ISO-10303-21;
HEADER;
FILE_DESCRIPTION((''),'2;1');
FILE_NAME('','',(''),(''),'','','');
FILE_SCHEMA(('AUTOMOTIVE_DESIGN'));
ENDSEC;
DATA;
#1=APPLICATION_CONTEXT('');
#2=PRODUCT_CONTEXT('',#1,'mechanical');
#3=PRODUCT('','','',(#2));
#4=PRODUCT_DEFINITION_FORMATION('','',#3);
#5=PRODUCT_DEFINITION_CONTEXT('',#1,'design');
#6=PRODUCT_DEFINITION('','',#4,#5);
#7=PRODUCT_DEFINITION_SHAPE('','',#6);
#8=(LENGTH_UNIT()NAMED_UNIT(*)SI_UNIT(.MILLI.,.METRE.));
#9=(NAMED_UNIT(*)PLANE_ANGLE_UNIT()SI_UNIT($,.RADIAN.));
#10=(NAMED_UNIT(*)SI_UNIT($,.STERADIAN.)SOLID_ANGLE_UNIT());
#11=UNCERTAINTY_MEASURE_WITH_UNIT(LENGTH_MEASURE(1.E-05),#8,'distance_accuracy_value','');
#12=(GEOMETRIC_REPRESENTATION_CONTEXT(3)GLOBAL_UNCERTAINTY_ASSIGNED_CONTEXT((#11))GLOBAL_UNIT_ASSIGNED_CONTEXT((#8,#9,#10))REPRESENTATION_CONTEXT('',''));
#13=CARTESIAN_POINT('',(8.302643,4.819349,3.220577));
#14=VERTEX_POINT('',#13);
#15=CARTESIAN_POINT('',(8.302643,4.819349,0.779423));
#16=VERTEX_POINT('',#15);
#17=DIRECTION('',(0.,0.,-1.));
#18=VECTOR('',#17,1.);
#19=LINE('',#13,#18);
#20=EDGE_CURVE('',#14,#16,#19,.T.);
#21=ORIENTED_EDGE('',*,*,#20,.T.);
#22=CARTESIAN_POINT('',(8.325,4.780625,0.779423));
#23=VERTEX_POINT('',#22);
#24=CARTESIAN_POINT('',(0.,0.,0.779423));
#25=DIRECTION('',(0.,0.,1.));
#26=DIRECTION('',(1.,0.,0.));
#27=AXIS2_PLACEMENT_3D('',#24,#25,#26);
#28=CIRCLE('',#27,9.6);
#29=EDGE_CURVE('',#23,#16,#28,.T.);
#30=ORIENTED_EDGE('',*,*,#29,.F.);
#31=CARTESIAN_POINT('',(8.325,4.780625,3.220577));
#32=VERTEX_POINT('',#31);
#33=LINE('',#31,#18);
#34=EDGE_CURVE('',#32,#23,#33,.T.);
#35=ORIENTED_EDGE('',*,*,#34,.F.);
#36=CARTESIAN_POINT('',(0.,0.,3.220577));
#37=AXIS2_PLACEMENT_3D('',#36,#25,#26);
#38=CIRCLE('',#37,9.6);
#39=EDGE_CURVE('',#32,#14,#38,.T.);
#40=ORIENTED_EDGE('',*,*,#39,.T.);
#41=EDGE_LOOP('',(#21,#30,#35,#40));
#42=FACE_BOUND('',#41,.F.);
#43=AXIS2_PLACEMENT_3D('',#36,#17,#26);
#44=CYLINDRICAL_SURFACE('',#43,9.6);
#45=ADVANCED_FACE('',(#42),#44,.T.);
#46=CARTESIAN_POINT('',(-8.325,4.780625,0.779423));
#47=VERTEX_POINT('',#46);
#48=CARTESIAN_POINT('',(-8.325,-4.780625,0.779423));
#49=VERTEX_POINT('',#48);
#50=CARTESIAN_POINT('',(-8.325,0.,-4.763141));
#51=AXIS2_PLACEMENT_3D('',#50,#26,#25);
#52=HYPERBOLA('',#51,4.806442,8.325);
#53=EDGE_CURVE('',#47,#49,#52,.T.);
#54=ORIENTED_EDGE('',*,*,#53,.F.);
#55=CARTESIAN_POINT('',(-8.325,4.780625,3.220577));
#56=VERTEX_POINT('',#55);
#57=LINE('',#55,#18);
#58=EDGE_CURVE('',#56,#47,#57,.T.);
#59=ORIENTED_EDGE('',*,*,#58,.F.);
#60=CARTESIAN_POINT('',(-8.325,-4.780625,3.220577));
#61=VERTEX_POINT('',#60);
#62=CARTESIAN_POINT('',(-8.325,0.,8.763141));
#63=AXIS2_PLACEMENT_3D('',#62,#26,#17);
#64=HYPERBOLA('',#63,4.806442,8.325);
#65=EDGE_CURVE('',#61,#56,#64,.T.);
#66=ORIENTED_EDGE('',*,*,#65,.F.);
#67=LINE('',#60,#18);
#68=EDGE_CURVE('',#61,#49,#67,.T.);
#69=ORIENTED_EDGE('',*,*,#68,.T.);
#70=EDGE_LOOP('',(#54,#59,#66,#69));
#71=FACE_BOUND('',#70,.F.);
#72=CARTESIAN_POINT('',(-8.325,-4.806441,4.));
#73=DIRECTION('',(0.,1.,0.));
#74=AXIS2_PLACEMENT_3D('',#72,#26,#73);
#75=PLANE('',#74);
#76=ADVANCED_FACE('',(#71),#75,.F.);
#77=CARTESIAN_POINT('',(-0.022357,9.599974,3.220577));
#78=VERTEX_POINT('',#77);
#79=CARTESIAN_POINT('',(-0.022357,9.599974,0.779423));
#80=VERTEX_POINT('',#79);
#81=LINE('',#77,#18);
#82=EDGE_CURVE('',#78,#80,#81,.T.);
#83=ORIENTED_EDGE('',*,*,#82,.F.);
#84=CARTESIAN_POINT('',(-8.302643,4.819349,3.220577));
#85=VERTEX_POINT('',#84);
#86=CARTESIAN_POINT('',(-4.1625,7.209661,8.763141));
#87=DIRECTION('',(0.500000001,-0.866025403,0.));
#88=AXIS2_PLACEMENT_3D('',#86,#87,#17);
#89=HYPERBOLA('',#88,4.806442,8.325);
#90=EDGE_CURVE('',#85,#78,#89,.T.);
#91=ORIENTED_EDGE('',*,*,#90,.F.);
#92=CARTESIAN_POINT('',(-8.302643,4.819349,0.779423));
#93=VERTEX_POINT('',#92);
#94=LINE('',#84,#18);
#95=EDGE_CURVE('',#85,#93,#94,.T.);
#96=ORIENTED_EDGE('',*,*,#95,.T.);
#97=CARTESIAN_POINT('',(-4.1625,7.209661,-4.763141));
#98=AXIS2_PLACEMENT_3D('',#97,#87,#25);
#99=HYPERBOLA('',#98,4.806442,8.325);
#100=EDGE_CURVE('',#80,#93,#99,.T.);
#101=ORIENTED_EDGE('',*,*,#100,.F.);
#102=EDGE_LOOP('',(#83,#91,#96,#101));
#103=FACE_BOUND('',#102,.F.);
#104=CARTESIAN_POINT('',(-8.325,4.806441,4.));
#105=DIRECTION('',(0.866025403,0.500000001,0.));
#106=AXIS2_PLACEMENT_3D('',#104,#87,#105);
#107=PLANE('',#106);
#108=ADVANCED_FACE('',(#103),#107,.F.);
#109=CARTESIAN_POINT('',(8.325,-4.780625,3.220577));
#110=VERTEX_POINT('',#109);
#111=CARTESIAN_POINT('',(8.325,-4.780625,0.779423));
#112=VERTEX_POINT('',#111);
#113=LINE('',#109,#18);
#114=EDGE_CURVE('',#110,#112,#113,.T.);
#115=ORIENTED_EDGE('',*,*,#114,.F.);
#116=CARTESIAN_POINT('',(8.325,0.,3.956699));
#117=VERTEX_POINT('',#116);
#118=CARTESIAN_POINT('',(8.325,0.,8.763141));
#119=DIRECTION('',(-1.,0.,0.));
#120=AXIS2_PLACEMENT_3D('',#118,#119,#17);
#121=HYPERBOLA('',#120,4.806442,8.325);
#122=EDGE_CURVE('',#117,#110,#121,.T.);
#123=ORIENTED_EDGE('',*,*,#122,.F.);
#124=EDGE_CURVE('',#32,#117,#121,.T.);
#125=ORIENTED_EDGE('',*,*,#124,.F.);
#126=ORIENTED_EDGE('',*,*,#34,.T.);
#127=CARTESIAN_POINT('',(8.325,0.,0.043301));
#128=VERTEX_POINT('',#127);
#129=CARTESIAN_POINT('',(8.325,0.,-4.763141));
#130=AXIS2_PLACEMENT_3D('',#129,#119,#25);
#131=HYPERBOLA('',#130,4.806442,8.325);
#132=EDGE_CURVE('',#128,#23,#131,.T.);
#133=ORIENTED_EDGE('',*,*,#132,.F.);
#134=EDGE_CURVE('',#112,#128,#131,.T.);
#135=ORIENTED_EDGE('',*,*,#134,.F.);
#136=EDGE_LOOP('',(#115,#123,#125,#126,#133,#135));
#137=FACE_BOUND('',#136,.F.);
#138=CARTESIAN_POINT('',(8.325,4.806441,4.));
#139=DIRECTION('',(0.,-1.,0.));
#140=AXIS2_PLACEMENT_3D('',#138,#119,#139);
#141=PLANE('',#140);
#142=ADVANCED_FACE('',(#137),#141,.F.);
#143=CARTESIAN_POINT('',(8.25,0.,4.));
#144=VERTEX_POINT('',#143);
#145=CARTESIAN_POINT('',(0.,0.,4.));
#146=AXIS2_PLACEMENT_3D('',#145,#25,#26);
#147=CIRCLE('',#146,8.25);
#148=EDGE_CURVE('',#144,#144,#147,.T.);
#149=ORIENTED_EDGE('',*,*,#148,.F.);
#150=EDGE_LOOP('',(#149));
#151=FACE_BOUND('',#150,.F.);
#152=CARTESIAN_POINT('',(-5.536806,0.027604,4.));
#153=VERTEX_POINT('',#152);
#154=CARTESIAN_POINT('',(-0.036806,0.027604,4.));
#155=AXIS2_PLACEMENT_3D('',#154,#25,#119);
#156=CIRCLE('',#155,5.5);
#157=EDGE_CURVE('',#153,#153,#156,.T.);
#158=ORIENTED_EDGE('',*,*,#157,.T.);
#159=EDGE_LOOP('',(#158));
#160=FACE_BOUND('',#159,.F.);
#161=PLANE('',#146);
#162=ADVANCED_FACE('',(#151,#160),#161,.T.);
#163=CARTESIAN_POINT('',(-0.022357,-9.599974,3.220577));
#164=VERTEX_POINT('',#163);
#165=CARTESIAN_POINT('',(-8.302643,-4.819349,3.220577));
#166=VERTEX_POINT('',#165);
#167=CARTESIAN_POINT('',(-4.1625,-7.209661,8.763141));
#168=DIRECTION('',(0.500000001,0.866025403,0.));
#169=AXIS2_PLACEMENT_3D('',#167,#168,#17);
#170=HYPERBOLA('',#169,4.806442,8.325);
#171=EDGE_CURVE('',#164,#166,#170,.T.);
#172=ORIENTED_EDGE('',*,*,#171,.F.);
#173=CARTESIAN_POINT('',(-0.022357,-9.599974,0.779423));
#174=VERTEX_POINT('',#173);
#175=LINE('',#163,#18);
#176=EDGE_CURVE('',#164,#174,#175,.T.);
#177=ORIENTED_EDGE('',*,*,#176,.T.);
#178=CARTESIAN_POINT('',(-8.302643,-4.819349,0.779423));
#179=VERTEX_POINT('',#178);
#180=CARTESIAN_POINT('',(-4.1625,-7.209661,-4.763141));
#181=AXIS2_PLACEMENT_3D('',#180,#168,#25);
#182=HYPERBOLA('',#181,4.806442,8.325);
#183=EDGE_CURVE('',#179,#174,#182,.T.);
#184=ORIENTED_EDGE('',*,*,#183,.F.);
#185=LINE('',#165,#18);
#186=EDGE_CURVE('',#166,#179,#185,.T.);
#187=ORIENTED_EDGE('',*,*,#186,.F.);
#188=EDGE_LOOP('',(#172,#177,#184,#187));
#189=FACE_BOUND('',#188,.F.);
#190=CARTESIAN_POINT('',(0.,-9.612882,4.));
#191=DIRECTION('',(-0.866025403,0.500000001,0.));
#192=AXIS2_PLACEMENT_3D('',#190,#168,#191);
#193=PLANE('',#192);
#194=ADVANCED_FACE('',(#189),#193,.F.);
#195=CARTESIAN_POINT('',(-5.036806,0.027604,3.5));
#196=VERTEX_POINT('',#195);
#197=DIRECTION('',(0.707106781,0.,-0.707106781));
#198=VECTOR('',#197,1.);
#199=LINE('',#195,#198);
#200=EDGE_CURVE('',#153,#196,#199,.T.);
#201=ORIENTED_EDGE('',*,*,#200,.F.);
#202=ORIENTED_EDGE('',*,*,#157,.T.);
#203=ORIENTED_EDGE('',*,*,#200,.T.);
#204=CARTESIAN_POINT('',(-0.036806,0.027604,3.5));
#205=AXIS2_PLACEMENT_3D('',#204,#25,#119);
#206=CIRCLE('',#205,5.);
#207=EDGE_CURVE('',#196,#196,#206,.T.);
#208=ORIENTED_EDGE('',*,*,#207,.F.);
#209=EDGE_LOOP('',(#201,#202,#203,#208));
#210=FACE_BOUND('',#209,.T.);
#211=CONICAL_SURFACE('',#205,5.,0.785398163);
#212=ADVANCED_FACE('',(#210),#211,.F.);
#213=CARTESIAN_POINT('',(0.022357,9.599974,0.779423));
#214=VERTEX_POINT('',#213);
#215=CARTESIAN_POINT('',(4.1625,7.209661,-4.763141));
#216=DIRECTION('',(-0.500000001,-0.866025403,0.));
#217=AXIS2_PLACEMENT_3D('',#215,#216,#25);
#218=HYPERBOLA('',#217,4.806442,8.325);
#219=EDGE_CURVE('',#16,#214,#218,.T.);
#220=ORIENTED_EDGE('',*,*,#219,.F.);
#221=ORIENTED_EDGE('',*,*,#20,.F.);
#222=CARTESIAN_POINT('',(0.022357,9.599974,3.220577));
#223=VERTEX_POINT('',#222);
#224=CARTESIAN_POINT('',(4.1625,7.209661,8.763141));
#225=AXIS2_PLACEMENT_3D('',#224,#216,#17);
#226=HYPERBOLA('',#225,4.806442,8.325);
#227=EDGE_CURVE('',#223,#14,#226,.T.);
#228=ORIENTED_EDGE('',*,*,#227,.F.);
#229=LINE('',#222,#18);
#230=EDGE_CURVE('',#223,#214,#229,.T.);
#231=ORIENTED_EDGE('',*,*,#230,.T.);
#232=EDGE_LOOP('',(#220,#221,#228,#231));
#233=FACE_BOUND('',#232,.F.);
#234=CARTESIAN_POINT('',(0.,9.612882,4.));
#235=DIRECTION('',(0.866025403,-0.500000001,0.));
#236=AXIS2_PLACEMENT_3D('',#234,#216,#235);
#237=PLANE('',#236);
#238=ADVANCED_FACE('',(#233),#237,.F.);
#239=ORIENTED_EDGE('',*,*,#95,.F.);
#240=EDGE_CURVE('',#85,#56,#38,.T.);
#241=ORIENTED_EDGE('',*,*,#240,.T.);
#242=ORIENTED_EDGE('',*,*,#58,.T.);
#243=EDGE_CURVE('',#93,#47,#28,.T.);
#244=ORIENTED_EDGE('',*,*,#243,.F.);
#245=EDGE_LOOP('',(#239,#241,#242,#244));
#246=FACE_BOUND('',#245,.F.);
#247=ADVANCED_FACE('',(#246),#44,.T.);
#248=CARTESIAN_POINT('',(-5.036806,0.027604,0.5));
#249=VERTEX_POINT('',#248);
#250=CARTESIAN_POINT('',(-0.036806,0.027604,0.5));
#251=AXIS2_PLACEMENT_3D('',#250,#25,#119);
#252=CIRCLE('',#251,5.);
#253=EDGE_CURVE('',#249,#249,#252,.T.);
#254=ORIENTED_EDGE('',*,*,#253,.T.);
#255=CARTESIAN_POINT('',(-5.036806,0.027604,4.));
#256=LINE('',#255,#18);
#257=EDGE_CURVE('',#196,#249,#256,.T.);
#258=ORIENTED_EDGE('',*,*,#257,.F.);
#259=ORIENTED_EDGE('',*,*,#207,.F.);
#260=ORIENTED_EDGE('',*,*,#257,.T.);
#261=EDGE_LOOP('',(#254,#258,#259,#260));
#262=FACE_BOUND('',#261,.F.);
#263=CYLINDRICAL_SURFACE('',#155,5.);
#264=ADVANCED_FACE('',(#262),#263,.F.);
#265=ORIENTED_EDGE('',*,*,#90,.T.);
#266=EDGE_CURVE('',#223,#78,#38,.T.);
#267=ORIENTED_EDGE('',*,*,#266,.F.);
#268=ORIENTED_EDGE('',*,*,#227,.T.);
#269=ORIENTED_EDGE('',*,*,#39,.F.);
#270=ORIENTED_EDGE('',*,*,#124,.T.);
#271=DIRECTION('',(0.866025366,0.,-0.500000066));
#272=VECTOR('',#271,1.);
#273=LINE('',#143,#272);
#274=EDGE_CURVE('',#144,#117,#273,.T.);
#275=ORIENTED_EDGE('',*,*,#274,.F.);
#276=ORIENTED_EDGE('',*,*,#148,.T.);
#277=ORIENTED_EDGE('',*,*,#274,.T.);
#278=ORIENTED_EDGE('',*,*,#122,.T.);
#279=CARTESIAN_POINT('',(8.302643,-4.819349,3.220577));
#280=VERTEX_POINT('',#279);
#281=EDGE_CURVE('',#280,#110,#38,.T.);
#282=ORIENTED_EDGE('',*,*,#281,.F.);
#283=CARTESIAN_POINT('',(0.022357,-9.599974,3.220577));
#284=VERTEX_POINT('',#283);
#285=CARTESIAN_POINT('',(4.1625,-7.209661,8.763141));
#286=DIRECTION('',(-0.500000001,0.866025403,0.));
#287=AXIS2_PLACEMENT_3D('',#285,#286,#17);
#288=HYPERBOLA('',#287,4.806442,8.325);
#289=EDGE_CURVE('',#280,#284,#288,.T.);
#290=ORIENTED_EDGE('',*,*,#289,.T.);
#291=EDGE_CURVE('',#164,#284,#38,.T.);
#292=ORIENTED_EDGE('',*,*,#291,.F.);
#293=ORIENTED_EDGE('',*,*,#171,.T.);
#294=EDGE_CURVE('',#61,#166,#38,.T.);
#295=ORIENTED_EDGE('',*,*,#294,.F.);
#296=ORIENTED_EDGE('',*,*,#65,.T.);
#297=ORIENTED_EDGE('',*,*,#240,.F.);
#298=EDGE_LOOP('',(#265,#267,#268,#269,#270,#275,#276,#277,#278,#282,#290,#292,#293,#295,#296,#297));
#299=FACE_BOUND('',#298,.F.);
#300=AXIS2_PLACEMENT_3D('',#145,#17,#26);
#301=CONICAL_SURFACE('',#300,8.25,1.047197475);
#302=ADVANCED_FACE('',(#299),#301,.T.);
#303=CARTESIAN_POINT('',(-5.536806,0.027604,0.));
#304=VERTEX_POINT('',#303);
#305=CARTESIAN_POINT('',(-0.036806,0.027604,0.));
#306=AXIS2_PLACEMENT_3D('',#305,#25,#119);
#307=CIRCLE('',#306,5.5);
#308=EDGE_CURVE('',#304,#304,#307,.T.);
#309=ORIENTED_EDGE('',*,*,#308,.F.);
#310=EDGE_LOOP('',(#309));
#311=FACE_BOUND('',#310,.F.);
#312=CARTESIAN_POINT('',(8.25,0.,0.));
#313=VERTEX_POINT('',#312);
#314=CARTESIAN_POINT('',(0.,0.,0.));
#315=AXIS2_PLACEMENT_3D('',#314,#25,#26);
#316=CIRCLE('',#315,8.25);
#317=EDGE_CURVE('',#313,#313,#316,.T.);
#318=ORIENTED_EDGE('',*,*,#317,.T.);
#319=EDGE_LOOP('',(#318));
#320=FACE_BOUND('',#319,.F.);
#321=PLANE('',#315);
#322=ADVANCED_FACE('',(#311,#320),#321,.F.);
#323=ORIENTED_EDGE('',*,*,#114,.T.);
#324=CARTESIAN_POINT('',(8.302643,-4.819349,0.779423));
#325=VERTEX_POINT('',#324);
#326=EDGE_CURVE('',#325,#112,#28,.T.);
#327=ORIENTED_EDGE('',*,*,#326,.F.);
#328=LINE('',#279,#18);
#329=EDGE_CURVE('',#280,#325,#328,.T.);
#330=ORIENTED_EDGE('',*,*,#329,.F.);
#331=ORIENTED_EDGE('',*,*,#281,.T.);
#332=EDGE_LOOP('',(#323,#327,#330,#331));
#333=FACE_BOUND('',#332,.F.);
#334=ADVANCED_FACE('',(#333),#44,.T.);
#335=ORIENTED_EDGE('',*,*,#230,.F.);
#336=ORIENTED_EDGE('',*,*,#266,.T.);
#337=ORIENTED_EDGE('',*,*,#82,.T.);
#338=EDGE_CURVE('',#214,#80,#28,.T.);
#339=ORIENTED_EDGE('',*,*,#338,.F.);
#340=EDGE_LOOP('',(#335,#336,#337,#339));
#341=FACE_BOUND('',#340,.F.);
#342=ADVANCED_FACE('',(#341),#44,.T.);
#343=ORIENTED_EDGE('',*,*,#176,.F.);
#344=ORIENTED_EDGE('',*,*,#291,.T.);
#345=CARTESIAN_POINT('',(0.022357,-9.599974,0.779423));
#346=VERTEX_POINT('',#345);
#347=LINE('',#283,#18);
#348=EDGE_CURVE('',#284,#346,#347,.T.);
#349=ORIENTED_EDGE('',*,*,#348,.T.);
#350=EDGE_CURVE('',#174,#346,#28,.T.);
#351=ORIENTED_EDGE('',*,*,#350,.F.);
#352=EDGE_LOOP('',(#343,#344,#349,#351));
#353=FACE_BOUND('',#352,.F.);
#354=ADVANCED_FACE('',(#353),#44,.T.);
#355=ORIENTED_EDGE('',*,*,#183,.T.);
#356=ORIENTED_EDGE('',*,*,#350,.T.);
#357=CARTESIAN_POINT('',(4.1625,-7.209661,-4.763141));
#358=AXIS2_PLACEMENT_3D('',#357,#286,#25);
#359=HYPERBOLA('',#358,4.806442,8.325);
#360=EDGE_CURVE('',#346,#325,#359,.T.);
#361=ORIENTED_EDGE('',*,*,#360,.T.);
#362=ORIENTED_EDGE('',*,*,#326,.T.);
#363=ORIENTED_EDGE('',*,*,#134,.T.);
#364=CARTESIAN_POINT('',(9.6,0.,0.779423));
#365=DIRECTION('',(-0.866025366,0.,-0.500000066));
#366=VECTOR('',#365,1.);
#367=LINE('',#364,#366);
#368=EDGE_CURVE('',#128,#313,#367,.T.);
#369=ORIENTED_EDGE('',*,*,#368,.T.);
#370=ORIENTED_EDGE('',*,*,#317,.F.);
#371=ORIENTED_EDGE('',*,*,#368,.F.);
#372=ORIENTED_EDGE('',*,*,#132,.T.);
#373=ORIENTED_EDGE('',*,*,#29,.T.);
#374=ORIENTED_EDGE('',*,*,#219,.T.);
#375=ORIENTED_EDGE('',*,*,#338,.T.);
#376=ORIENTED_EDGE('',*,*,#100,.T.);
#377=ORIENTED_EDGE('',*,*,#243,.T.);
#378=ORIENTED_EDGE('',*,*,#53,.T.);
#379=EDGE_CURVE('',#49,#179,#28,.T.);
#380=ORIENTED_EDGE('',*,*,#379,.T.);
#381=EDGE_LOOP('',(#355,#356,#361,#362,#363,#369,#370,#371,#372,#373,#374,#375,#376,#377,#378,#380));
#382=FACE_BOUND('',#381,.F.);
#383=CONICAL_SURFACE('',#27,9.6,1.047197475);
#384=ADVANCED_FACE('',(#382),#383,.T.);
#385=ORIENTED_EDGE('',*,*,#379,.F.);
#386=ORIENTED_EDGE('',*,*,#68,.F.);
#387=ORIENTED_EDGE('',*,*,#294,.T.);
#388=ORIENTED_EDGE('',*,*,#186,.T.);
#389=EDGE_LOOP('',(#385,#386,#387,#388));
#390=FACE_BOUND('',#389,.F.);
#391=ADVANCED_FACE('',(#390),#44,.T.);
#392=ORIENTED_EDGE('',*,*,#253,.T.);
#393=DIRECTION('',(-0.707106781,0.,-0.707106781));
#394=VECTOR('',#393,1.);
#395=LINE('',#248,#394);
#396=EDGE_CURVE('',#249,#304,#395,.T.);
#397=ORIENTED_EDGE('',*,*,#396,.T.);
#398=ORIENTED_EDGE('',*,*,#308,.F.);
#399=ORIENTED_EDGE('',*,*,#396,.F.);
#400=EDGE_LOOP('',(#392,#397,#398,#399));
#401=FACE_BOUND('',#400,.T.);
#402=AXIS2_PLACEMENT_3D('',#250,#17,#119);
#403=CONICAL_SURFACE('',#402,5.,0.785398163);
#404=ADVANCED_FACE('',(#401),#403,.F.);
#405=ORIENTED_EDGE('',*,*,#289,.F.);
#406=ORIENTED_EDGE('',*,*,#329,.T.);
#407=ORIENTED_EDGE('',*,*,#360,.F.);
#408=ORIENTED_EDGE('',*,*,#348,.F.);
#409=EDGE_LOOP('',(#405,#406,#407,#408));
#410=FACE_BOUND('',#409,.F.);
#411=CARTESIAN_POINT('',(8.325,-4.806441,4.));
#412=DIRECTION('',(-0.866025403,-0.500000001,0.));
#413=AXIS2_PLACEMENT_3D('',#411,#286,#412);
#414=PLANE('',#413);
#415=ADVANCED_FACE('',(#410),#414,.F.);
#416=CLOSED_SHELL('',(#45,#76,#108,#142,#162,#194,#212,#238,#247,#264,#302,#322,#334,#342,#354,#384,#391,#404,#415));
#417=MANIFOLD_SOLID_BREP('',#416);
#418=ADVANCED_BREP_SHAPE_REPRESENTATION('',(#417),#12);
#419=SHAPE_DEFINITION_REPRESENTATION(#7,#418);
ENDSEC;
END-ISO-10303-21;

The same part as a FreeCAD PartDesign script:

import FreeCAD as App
import Part
import Sketcher

V = App.Vector
Q = App.Units.Quantity


def edges_at(feature, points):
    """Names of the edges that pass closest to the given points."""
    edges = feature.Shape.Edges
    near = lambda p: min(range(len(edges)), key=lambda i: edges[i].distToShape(Part.Vertex(*p))[0])
    return sorted({f"Edge{near(p) + 1}" for p in points})


def add_polygon(sketch, points):
    """Adds a closed chain of lines whose ends are joined by coincident constraints."""
    first, n = sketch.GeometryCount, len(points)
    for a, b in zip(points, points[1:] + points[:1]):
        sketch.addGeometry(Part.LineSegment(App.Vector(*a, 0), App.Vector(*b, 0)), False)
    for i in range(n):
        sketch.addConstraint(Sketcher.Constraint("Coincident", first + i, 2, first + (i + 1) % n, 1))

doc = App.newDocument("Part")
params = doc.addObject("Spreadsheet::Sheet", "Params")
for row, (alias, value) in enumerate([
    ("sketch1_height", "4 mm"),
    ("sketch1_width", "8.25 mm"),
    ("revolution_angle", "360 deg"),
    ("sketch3_diameter", "10 mm"),
    ("chamfer_size", "0.5 mm"),
], start=1):
    params.set(f"A{row}", alias)
    params.set(f"B{row}", "=" + value)
    params.setAlias(f"B{row}", alias)

body = doc.addObject("PartDesign::Body", "Body")

# Sketch on XZ plane
sketch1 = doc.addObject("Sketcher::SketchObject", "Sketch")
body.addObject(sketch1)
sketch1.AttachmentSupport = (doc.XZ_Plane, [""])
sketch1.MapMode = "FlatFace"
add_polygon(sketch1, [(8.25, 4), (0, 4), (0, 0), (8.25, 0), (9.6, 0.779423), (9.6, 3.220577)])  # lines 0-5
sketch1.addConstraint(Sketcher.Constraint("Horizontal", 0))
sketch1.addConstraint(Sketcher.Constraint("Vertical", 1))
sketch1.addConstraint(Sketcher.Constraint("Horizontal", 2))
sketch1.addConstraint(Sketcher.Constraint("Vertical", 4))
sketch1.addConstraint(Sketcher.Constraint("Coincident", 1, 2, -1, 1))
sketch1.addConstraint(Sketcher.Constraint("Vertical", 2, 2, 5, 2))
sketch1.addConstraint(Sketcher.Constraint("Equal", 3, 5))
sketch1.addConstraint(Sketcher.Constraint("DistanceY", 1, 2, 1, 1, 4.0))
sketch1.addConstraint(Sketcher.Constraint("Angle", 3, Q("30.000004 deg")))
sketch1.addConstraint(Sketcher.Constraint("DistanceX", 0, 2, 0, 1, 8.25))
sketch1.addConstraint(Sketcher.Constraint("DistanceX", -1, 1, 3, 2, 9.6))
sketch1.setExpression("Constraints[13]", "Params.sketch1_height")
sketch1.setExpression("Constraints[15]", "Params.sketch1_width")
revolution = doc.addObject("PartDesign::Revolution", "Revolution")
body.addObject(revolution)
revolution.Profile = sketch1
revolution.ReferenceAxis = (sketch1, ["V_Axis"])
revolution.setExpression("Angle", "Params.revolution_angle")

# Sketch on XY plane
sketch2 = doc.addObject("Sketcher::SketchObject", "Sketch001")
body.addObject(sketch2)
sketch2.AttachmentSupport = (doc.XY_Plane, [""])
sketch2.MapMode = "FlatFace"
sketch2.AttachmentOffset = App.Placement(V(0, 0, 4), App.Rotation())
sketch2.addGeometry(Part.Circle(V(0, 0, 0), V(0, 0, 1), 10.612882), False)  # 0
add_polygon(sketch2, [(8.325, 4.806441), (8.325, -4.806441), (0, -9.612882), (-8.325, -4.806441), (-8.325, 4.806441), (0, 9.612882)])  # lines 1-6
sketch2.addConstraint(Sketcher.Constraint("Vertical", 1))
sketch2.addConstraint(Sketcher.Constraint("Vertical", 4))
sketch2.addConstraint(Sketcher.Constraint("Coincident", 0, 3, -1, 1))
sketch2.addConstraint(Sketcher.Constraint("Symmetric", 1, 2, 4, 2, -1, 1))
sketch2.addConstraint(Sketcher.Constraint("Symmetric", 2, 2, 5, 2, -1, 1))
sketch2.addConstraint(Sketcher.Constraint("PointOnObject", 2, 2, -2))
sketch2.addConstraint(Sketcher.Constraint("Parallel", 3, 6))
sketch2.addConstraint(Sketcher.Constraint("Horizontal", 1, 2, 3, 2))
sketch2.addConstraint(Sketcher.Constraint("Angle", 2, Q("-150 deg")))
sketch2.addConstraint(Sketcher.Constraint("DistanceX", 3, 2, 1, 2, 16.65))
sketch2.addConstraint(Sketcher.Constraint("Diameter", 0, 21.225764))
sketch2.addConstraint(Sketcher.Constraint("DistanceY", 1, 2, 1, 1, 9.612882))
pocket1 = doc.addObject("PartDesign::Pocket", "Pocket")
body.addObject(pocket1)
pocket1.Profile = sketch2
pocket1.Type = "ThroughAll"

# Sketch on XY plane
sketch3 = doc.addObject("Sketcher::SketchObject", "Sketch002")
body.addObject(sketch3)
sketch3.AttachmentSupport = (doc.XY_Plane, [""])
sketch3.MapMode = "FlatFace"
sketch3.AttachmentOffset = App.Placement(V(0, 0, 4), App.Rotation())
sketch3.addGeometry(Part.Circle(V(-0.036806, 0.027604, 0), V(0, 0, 1), 5), False)
sketch3.addConstraint(Sketcher.Constraint("Diameter", 0, 10.0))
sketch3.addConstraint(Sketcher.Constraint("DistanceX", 0, 3, -1, 1, 0.036806))
sketch3.addConstraint(Sketcher.Constraint("DistanceY", -1, 1, 0, 3, 0.027604))
sketch3.setExpression("Constraints[0]", "Params.sketch3_diameter")
pocket2 = doc.addObject("PartDesign::Pocket", "Pocket001")
body.addObject(pocket2)
pocket2.Profile = sketch3
pocket2.Type = "ThroughAll"
doc.recompute()

chamfer = doc.addObject("PartDesign::Chamfer", "Chamfer")
body.addObject(chamfer)
chamfer.Base = (pocket2, edges_at(pocket2, [(4.963, 0.028, 4), (4.963, 0.028, 0)]))
chamfer.setExpression("Size", "Params.chamfer_size")

doc.recompute()
